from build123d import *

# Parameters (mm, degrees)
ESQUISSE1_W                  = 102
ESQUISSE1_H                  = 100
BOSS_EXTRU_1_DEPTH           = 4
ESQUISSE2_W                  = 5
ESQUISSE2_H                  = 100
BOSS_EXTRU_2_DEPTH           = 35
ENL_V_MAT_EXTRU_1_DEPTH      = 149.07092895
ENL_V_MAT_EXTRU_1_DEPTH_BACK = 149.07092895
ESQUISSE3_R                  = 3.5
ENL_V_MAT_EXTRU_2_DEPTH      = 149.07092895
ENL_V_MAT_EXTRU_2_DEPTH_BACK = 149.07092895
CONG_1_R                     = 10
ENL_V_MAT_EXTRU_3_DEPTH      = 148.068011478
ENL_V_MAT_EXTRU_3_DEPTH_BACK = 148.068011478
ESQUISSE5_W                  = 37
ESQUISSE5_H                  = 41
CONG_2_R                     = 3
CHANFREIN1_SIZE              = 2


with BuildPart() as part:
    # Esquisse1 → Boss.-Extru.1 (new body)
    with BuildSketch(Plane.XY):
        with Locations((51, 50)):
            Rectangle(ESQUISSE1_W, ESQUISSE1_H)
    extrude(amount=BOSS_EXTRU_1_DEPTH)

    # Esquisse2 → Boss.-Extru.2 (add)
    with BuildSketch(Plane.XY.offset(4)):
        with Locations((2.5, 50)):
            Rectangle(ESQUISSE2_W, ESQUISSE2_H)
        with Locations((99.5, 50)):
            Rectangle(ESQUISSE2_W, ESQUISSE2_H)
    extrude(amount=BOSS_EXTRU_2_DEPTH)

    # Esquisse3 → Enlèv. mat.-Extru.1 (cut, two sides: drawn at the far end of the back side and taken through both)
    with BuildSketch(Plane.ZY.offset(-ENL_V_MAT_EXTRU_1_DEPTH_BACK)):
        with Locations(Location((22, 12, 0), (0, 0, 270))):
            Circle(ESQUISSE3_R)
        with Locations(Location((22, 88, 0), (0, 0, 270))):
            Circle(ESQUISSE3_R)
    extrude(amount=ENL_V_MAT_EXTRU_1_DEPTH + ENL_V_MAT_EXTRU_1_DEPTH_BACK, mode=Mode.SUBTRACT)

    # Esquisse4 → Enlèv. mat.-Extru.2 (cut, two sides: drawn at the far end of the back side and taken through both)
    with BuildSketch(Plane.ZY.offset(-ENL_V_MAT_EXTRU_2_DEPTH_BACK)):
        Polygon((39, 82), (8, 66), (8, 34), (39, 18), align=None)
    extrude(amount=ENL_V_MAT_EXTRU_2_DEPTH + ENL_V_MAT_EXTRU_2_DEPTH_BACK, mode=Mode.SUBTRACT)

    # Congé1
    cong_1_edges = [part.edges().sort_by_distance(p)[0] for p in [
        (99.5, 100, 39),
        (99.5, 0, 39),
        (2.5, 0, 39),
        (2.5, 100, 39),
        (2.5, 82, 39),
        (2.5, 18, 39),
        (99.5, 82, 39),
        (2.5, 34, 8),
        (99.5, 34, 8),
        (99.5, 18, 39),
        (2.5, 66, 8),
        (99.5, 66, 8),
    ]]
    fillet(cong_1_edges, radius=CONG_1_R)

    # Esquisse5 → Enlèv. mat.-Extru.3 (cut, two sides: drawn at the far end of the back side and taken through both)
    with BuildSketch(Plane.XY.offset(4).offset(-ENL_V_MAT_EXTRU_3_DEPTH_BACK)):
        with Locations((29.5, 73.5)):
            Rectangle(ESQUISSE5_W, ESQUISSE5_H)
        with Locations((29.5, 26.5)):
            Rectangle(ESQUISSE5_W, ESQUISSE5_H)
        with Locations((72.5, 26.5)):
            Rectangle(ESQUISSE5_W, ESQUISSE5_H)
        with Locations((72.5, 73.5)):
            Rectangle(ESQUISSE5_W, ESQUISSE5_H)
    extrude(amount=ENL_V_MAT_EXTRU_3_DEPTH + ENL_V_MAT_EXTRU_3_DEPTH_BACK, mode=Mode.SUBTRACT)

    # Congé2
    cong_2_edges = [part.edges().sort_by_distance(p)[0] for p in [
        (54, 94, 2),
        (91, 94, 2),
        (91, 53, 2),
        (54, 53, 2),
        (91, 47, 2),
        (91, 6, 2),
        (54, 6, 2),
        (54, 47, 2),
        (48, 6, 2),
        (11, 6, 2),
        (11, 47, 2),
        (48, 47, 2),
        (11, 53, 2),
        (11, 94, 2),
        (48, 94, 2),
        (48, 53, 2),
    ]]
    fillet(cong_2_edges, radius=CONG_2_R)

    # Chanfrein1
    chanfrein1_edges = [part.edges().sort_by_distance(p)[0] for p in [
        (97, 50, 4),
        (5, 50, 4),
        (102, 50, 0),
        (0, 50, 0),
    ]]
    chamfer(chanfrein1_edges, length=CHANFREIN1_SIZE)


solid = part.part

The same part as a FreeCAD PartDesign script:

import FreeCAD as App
import Part
import Sketcher

V = App.Vector


def edges_at(feature, points):
    """Names of the edges that pass closest to the given points."""
    edges = feature.Shape.Edges
    near = lambda p: min(range(len(edges)), key=lambda i: edges[i].distToShape(Part.Vertex(*p))[0])
    return sorted({f"Edge{near(p) + 1}" for p in points})

doc = App.newDocument("Part")
body = doc.addObject("PartDesign::Body", "Body")

sketch1 = doc.addObject("Sketcher::SketchObject", "Sketch")
body.addObject(sketch1)
sketch1.AttachmentSupport = (doc.XY_Plane, [""])
sketch1.MapMode = "FlatFace"
sketch1.addGeometry([
    Part.LineSegment(V(0, 100, 0), V(0, 0, 0)),
    Part.LineSegment(V(0, 0, 0), V(102, 0, 0)),
    Part.LineSegment(V(102, 0, 0), V(102, 100, 0)),
    Part.LineSegment(V(102, 100, 0), V(0, 100, 0)),
], False)
sketch1.addConstraint([
    Sketcher.Constraint("Coincident", 0, 2, 1, 1),
    Sketcher.Constraint("Coincident", 1, 2, 2, 1),
    Sketcher.Constraint("Coincident", 2, 2, 3, 1),
    Sketcher.Constraint("Coincident", 3, 2, 0, 1),
    Sketcher.Constraint("Vertical", 0),
    Sketcher.Constraint("Horizontal", 1),
    Sketcher.Constraint("Vertical", 2),
    Sketcher.Constraint("Horizontal", 3),
    Sketcher.Constraint("Coincident", 0, 2, -1, 1),
    Sketcher.Constraint("DistanceX", 1, 1, 1, 2, 102.0),
    Sketcher.Constraint("DistanceY", 0, 2, 0, 1, 100.0),
])
pad1 = doc.addObject("PartDesign::Pad", "Pad")
body.addObject(pad1)
pad1.Profile = sketch1
pad1.Length = 4

sketch2 = doc.addObject("Sketcher::SketchObject", "Sketch001")
body.addObject(sketch2)
sketch2.AttachmentSupport = (doc.XY_Plane, [""])
sketch2.MapMode = "FlatFace"
sketch2.AttachmentOffset = App.Placement(V(0, 0, 4), App.Rotation())
sketch2.addGeometry([
    Part.LineSegment(V(0, 100, 0), V(0, 0, 0)),
    Part.LineSegment(V(0, 0, 0), V(5, 0, 0)),
    Part.LineSegment(V(5, 0, 0), V(5, 100, 0)),
    Part.LineSegment(V(5, 100, 0), V(0, 100, 0)),
    Part.LineSegment(V(97, 100, 0), V(97, 0, 0)),
    Part.LineSegment(V(97, 0, 0), V(102, 0, 0)),
    Part.LineSegment(V(102, 0, 0), V(102, 100, 0)),
    Part.LineSegment(V(102, 100, 0), V(97, 100, 0)),
], False)
sketch2.addConstraint([
    Sketcher.Constraint("Coincident", 0, 2, 1, 1),
    Sketcher.Constraint("Coincident", 1, 2, 2, 1),
    Sketcher.Constraint("Coincident", 2, 2, 3, 1),
    Sketcher.Constraint("Coincident", 3, 2, 0, 1),
    Sketcher.Constraint("Coincident", 4, 2, 5, 1),
    Sketcher.Constraint("Coincident", 5, 2, 6, 1),
    Sketcher.Constraint("Coincident", 6, 2, 7, 1),
    Sketcher.Constraint("Coincident", 7, 2, 4, 1),
    Sketcher.Constraint("Vertical", 0),
    Sketcher.Constraint("Horizontal", 1),
    Sketcher.Constraint("Vertical", 2),
    Sketcher.Constraint("Horizontal", 3),
    Sketcher.Constraint("Vertical", 4),
    Sketcher.Constraint("Horizontal", 5),
    Sketcher.Constraint("Vertical", 6),
    Sketcher.Constraint("Horizontal", 7),
    Sketcher.Constraint("Coincident", 0, 2, -1, 1),
    Sketcher.Constraint("PointOnObject", 4, 2, -1),
    Sketcher.Constraint("Horizontal", 3, 2, 6, 2),
    Sketcher.Constraint("Equal", 3, 5),
    Sketcher.Constraint("DistanceX", 1, 1, 1, 2, 5.0),
    Sketcher.Constraint("DistanceY", 0, 2, 0, 1, 100.0),
    Sketcher.Constraint("DistanceX", -1, 1, 4, 2, 97.0),
])
pad2 = doc.addObject("PartDesign::Pad", "Pad001")
body.addObject(pad2)
pad2.Profile = sketch2
pad2.Length = 35

sketch3 = doc.addObject("Sketcher::SketchObject", "Sketch002")
body.addObject(sketch3)
sketch3.AttachmentSupport = (doc.YZ_Plane, [""])
sketch3.MapMode = "FlatFace"
sketch3.addGeometry([
    Part.Circle(V(12, 22, 0), V(0, 0, 1), 3.5),
    Part.Circle(V(88, 22, 0), V(0, 0, 1), 3.5),
], False)
sketch3.addConstraint([
    Sketcher.Constraint("Equal", 0, 1),
    Sketcher.Constraint("Horizontal", 0, 3, 1, 3),
    Sketcher.Constraint("Diameter", 0, 7.0),
    Sketcher.Constraint("DistanceX", -1, 1, 0, 3, 12.0),
    Sketcher.Constraint("DistanceY", -1, 1, 0, 3, 22.0),
    Sketcher.Constraint("DistanceX", -1, 1, 1, 3, 88.0),
])
pocket1 = doc.addObject("PartDesign::Pocket", "Pocket")
body.addObject(pocket1)
pocket1.Profile = sketch3
pocket1.Type = "ThroughAll"
pocket1.Midplane = True

sketch4 = doc.addObject("Sketcher::SketchObject", "Sketch003")
body.addObject(sketch4)
sketch4.AttachmentSupport = (doc.YZ_Plane, [""])
sketch4.MapMode = "FlatFace"
sketch4.addGeometry([
    Part.LineSegment(V(82, 39, 0), V(66, 8, 0)),
    Part.LineSegment(V(66, 8, 0), V(34, 8, 0)),
    Part.LineSegment(V(34, 8, 0), V(18, 39, 0)),
    Part.LineSegment(V(18, 39, 0), V(82, 39, 0)),
], False)
sketch4.addConstraint([
    Sketcher.Constraint("Coincident", 0, 2, 1, 1),
    Sketcher.Constraint("Coincident", 1, 2, 2, 1),
    Sketcher.Constraint("Coincident", 2, 2, 3, 1),
    Sketcher.Constraint("Coincident", 3, 2, 0, 1),
    Sketcher.Constraint("Horizontal", 1),
    Sketcher.Constraint("Horizontal", 3),
    Sketcher.Constraint("Equal", 0, 2),
    Sketcher.Constraint("DistanceX", 1, 2, 1, 1, 32.0),
    Sketcher.Constraint("DistanceX", 3, 1, 3, 2, 64.0),
    Sketcher.Constraint("DistanceX", -1, 1, 0, 2, 66.0),
    Sketcher.Constraint("DistanceY", -1, 1, 0, 2, 8.0),
    Sketcher.Constraint("DistanceY", -1, 1, 2, 2, 39.0),
])
pocket2 = doc.addObject("PartDesign::Pocket", "Pocket001")
body.addObject(pocket2)
pocket2.Profile = sketch4
pocket2.Type = "ThroughAll"
pocket2.Midplane = True
doc.recompute()

fillet = doc.addObject("PartDesign::Fillet", "Fillet")
body.addObject(fillet)
fillet.Base = (pocket2, edges_at(pocket2, [
    (99.5, 100, 39),
    (99.5, 0, 39),
    (2.5, 0, 39),
    (2.5, 100, 39),
    (2.5, 82, 39),
    (2.5, 18, 39),
    (99.5, 82, 39),
    (2.5, 34, 8),
    (99.5, 34, 8),
    (99.5, 18, 39),
    (2.5, 66, 8),
    (99.5, 66, 8),
]))
fillet.Radius = 10

sketch5 = doc.addObject("Sketcher::SketchObject", "Sketch004")
body.addObject(sketch5)
sketch5.AttachmentSupport = (doc.XY_Plane, [""])
sketch5.MapMode = "FlatFace"
sketch5.AttachmentOffset = App.Placement(V(0, 0, 4), App.Rotation())
sketch5.addGeometry([
    Part.LineSegment(V(11, 94, 0), V(11, 53, 0)),
    Part.LineSegment(V(11, 53, 0), V(48, 53, 0)),
    Part.LineSegment(V(48, 53, 0), V(48, 94, 0)),
    Part.LineSegment(V(48, 94, 0), V(11, 94, 0)),
    Part.LineSegment(V(11, 47, 0), V(11, 6, 0)),
    Part.LineSegment(V(11, 6, 0), V(48, 6, 0)),
    Part.LineSegment(V(48, 6, 0), V(48, 47, 0)),
    Part.LineSegment(V(48, 47, 0), V(11, 47, 0)),
    Part.LineSegment(V(54, 47, 0), V(54, 6, 0)),
    Part.LineSegment(V(54, 6, 0), V(91, 6, 0)),
    Part.LineSegment(V(91, 6, 0), V(91, 47, 0)),
    Part.LineSegment(V(91, 47, 0), V(54, 47, 0)),
    Part.LineSegment(V(54, 94, 0), V(54, 53, 0)),
    Part.LineSegment(V(54, 53, 0), V(91, 53, 0)),
    Part.LineSegment(V(91, 53, 0), V(91, 94, 0)),
    Part.LineSegment(V(91, 94, 0), V(54, 94, 0)),
], False)
sketch5.addConstraint([
    Sketcher.Constraint("Coincident", 0, 2, 1, 1),
    Sketcher.Constraint("Coincident", 1, 2, 2, 1),
    Sketcher.Constraint("Coincident", 2, 2, 3, 1),
    Sketcher.Constraint("Coincident", 3, 2, 0, 1),
    Sketcher.Constraint("Coincident", 4, 2, 5, 1),
    Sketcher.Constraint("Coincident", 5, 2, 6, 1),
    Sketcher.Constraint("Coincident", 6, 2, 7, 1),
    Sketcher.Constraint("Coincident", 7, 2, 4, 1),
    Sketcher.Constraint("Coincident", 8, 2, 9, 1),
    Sketcher.Constraint("Coincident", 9, 2, 10, 1),
    Sketcher.Constraint("Coincident", 10, 2, 11, 1),
    Sketcher.Constraint("Coincident", 11, 2, 8, 1),
    Sketcher.Constraint("Coincident", 12, 2, 13, 1),
    Sketcher.Constraint("Coincident", 13, 2, 14, 1),
    Sketcher.Constraint("Coincident", 14, 2, 15, 1),
    Sketcher.Constraint("Coincident", 15, 2, 12, 1),
    Sketcher.Constraint("Vertical", 0),
    Sketcher.Constraint("Horizontal", 1),
    Sketcher.Constraint("Vertical", 2),
    Sketcher.Constraint("Horizontal", 3),
    Sketcher.Constraint("Vertical", 4),
    Sketcher.Constraint("Horizontal", 5),
    Sketcher.Constraint("Vertical", 6),
    Sketcher.Constraint("Horizontal", 7),
    Sketcher.Constraint("Vertical", 8),
    Sketcher.Constraint("Horizontal", 9),
    Sketcher.Constraint("Vertical", 10),
    Sketcher.Constraint("Horizontal", 11),
    Sketcher.Constraint("Vertical", 12),
    Sketcher.Constraint("Horizontal", 13),
    Sketcher.Constraint("Vertical", 14),
    Sketcher.Constraint("Horizontal", 15),
    Sketcher.Constraint("Horizontal", 5, 2, 8, 2),
    Sketcher.Constraint("Horizontal", 7, 2, 10, 2),
    Sketcher.Constraint("Horizontal", 1, 2, 12, 2),
    Sketcher.Constraint("Horizontal", 3, 2, 14, 2),
    Sketcher.Constraint("Vertical", 3, 2, 4, 2),
    Sketcher.Constraint("Vertical", 2, 2, 5, 2),
    Sketcher.Constraint("Vertical", 11, 2, 12, 2),
    Sketcher.Constraint("Vertical", 10, 2, 13, 2),
    Sketcher.Constraint("Equal", 7, 9),
    Sketcher.Constraint("Equal", 2, 4),
    Sketcher.Constraint("DistanceX", 1, 1, 1, 2, 37.0),
    Sketcher.Constraint("DistanceY", 0, 2, 0, 1, 41.0),
    Sketcher.Constraint("DistanceX", -1, 1, 0, 2, 11.0),
    Sketcher.Constraint("DistanceY", -1, 1, 0, 2, 53.0),
    Sketcher.Constraint("DistanceY", -1, 1, 4, 2, 6.0),
    Sketcher.Constraint("DistanceX", -1, 1, 8, 2, 54.0),
])
pocket3 = doc.addObject("PartDesign::Pocket", "Pocket002")
body.addObject(pocket3)
pocket3.Profile = sketch5
pocket3.Type = "ThroughAll"
pocket3.Midplane = True
doc.recompute()

fillet2 = doc.addObject("PartDesign::Fillet", "Fillet001")
body.addObject(fillet2)
fillet2.Base = (pocket3, edges_at(pocket3, [
    (54, 94, 2),
    (91, 94, 2),
    (91, 53, 2),
    (54, 53, 2),
    (91, 47, 2),
    (91, 6, 2),
    (54, 6, 2),
    (54, 47, 2),
    (48, 6, 2),
    (11, 6, 2),
    (11, 47, 2),
    (48, 47, 2),
    (11, 53, 2),
    (11, 94, 2),
    (48, 94, 2),
    (48, 53, 2),
]))
fillet2.Radius = 3
doc.recompute()

chamfer = doc.addObject("PartDesign::Chamfer", "Chamfer")
body.addObject(chamfer)
chamfer.Base = (fillet2, edges_at(fillet2, [
    (97, 50, 4),
    (5, 50, 4),
    (102, 50, 0),
    (0, 50, 0),
]))
chamfer.Size = 2

doc.recompute()
